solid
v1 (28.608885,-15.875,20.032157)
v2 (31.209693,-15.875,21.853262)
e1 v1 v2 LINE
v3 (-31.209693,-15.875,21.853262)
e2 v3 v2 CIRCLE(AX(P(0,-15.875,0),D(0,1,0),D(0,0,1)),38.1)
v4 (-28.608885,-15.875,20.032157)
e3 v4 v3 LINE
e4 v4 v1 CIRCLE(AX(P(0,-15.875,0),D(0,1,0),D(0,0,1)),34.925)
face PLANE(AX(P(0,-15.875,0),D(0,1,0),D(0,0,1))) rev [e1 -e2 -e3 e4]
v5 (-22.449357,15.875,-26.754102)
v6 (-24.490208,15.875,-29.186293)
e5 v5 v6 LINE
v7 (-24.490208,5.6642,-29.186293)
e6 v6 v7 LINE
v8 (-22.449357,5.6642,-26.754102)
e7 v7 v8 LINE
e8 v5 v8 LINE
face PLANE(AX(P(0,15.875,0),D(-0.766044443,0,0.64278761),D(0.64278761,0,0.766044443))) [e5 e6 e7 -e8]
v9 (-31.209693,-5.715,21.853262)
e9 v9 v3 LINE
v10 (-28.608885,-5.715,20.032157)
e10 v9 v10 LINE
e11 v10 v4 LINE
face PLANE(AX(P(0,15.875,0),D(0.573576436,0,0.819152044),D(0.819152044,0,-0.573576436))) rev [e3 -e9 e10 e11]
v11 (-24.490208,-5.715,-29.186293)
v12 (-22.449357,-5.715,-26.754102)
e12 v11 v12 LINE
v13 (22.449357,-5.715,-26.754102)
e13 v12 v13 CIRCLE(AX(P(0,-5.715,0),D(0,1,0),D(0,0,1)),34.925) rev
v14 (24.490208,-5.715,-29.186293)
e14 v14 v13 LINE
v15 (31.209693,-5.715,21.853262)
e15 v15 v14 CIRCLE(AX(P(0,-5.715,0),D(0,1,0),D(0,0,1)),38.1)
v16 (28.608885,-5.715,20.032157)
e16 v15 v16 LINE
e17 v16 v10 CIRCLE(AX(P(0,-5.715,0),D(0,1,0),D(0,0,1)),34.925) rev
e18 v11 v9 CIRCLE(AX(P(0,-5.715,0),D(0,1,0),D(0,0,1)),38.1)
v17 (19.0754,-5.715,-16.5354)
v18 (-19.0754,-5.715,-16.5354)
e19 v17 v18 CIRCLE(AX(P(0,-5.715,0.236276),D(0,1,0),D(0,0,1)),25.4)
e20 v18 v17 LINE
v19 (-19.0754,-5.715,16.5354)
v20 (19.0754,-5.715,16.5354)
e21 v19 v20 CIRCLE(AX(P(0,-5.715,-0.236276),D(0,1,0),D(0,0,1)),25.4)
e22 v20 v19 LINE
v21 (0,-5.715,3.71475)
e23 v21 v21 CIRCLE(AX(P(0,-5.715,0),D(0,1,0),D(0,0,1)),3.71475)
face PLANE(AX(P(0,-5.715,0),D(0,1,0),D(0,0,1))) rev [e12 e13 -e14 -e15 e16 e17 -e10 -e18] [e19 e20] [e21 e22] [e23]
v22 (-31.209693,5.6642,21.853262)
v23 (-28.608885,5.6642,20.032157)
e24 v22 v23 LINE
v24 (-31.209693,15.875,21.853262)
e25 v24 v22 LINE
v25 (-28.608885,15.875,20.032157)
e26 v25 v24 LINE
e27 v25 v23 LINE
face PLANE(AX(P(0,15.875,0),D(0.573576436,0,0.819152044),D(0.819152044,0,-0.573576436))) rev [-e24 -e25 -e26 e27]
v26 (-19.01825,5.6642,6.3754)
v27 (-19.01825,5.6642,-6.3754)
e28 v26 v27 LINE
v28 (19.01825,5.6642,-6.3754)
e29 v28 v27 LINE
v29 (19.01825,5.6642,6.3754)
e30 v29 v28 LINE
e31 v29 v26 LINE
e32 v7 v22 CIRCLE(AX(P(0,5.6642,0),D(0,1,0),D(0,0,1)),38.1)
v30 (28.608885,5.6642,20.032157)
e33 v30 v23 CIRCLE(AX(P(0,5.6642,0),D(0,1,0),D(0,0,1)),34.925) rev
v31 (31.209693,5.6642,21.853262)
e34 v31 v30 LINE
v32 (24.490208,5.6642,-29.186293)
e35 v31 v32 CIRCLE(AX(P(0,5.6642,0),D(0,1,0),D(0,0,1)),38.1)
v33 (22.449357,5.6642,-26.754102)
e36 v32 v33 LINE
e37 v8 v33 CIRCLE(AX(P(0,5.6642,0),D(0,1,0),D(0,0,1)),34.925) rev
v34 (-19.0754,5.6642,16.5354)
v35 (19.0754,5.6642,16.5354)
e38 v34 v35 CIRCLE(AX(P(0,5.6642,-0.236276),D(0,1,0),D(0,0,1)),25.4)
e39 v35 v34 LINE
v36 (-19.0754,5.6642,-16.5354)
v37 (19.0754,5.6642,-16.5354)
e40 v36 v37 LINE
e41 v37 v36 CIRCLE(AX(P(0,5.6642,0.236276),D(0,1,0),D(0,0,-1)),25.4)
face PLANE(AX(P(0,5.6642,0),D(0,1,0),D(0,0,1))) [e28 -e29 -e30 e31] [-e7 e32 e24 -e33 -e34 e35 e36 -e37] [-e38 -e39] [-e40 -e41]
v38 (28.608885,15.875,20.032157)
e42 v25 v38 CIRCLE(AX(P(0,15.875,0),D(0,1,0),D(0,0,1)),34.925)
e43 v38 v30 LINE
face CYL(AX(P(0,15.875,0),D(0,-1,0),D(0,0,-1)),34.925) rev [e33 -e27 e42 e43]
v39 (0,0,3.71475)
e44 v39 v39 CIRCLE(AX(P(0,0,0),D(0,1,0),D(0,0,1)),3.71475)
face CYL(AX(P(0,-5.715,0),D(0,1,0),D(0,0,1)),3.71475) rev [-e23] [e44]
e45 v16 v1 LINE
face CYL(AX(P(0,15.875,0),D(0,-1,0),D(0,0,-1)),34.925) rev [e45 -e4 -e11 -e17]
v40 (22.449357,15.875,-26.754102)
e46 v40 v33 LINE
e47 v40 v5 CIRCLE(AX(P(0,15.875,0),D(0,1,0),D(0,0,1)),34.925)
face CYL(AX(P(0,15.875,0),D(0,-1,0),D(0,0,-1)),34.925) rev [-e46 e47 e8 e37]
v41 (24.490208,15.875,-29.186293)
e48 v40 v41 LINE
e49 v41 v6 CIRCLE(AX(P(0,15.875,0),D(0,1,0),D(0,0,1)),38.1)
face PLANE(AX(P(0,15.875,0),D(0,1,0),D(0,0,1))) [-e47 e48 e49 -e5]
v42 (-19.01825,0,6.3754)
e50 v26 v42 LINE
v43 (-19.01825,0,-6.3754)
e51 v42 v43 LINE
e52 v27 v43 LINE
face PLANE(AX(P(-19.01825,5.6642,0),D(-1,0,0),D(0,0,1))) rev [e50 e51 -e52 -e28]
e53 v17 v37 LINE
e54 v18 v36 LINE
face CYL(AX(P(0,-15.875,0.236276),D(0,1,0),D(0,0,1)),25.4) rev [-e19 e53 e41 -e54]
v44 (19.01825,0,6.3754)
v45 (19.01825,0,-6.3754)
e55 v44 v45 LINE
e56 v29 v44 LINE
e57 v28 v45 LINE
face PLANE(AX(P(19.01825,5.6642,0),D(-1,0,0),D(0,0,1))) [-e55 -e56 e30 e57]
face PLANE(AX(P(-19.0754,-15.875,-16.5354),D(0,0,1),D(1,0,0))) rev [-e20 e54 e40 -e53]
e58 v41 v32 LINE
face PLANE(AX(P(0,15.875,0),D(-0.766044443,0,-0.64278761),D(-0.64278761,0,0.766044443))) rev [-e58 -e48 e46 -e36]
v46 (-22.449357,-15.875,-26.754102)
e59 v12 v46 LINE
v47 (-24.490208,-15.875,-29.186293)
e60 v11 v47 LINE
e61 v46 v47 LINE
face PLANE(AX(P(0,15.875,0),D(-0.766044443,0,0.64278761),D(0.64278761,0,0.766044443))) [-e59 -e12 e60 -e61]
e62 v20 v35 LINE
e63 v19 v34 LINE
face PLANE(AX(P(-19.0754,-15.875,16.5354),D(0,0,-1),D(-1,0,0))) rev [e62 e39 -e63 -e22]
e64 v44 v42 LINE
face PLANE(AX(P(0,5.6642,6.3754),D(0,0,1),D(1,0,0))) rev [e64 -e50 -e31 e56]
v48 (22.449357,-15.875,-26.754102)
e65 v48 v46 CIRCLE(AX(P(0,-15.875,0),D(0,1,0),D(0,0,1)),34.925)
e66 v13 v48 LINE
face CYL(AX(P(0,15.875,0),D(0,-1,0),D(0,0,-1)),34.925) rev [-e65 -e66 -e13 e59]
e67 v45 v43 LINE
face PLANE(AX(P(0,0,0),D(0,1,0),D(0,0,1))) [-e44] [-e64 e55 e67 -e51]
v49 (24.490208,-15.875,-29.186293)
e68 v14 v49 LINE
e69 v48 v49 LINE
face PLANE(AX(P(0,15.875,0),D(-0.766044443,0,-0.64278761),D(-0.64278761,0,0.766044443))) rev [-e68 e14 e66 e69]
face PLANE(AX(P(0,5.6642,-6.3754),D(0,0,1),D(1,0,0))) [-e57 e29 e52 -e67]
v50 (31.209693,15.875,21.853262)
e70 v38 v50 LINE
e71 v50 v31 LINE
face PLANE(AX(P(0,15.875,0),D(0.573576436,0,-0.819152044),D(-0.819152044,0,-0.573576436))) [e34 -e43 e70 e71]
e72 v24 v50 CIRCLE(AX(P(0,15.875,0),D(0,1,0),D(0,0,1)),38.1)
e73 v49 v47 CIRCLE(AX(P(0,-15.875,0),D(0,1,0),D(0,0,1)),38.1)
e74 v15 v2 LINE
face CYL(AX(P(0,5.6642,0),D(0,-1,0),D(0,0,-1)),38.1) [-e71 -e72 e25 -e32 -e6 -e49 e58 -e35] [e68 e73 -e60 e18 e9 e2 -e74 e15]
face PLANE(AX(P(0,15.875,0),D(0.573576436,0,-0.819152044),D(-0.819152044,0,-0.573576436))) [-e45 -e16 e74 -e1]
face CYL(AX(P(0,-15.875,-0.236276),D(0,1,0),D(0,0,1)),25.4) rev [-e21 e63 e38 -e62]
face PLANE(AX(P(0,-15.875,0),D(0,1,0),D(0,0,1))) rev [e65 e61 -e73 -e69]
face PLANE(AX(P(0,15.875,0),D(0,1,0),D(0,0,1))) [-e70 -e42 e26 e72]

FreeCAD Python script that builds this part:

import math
import FreeCAD as App
import Part
import Sketcher
from FreeCAD import Vector
Q = App.Units.Quantity


def add_polygon(sketch, points):
    """Adds a closed chain of lines whose ends are joined by coincident constraints."""
    first, n = sketch.GeometryCount, len(points)
    for a, b in zip(points, points[1:] + points[:1]):
        sketch.addGeometry(Part.LineSegment(App.Vector(*a, 0), App.Vector(*b, 0)), False)
    for i in range(n):
        sketch.addConstraint(Sketcher.Constraint("Coincident", first + i, 2, first + (i + 1) % n, 1))

doc = App.newDocument("Part")
body = doc.addObject("PartDesign::Body", "Body")

# Sketch on XZ plane
sketch1 = body.newObject("Sketcher::SketchObject", "Sketch")
sketch1.AttachmentSupport = (doc.getObject("XZ_Plane"), [""])
sketch1.MapMode = "FlatFace"
sketch1.addGeometry(Part.Circle(Vector(0, 0, 0), Vector(0, 0, 1), 38.1), False)  # 0
add_polygon(sketch1, [(19.01825, 6.3754), (-19.01825, 6.3754), (-19.01825, -6.3754), (19.01825, -6.3754)])  # lines 1-4
sketch1.addConstraint([
    Sketcher.Constraint("Horizontal", 1),
    Sketcher.Constraint("Vertical", 2),
    Sketcher.Constraint("Horizontal", 3),
    Sketcher.Constraint("Vertical", 4),
    Sketcher.Constraint("Coincident", 0, 3, -1, 1),
    Sketcher.Constraint("Symmetric", 1, 2, 3, 2, -1, 1),
    Sketcher.Constraint("Diameter", 0, Q("3 in")),
    Sketcher.Constraint("DistanceY", 2, 2, 2, 1, Q("0.502 in")),
    Sketcher.Constraint("DistanceX", 1, 2, 1, 1, Q("1.4975 in")),
])
pad1 = body.newObject("PartDesign::Pad", "Pad")
pad1.Profile = sketch1
pad1.Length = Q("0.223 in")
pad1.Reversed = True

# Sketch on XZ plane
sketch2 = body.newObject("Sketcher::SketchObject", "Sketch001")
sketch2.AttachmentSupport = (doc.getObject("XZ_Plane"), [""])
sketch2.MapMode = "FlatFace"
sketch2.addGeometry([
    Part.Circle(Vector(0, 0, 0), Vector(0, 0, 1), 38.1),
    Part.Circle(Vector(0, 0, 0), Vector(0, 0, 1), 3.71475),
], False)
sketch2.addConstraint([
    Sketcher.Constraint("Coincident", 0, 3, -1, 1),
    Sketcher.Constraint("Coincident", 1, 3, -1, 1),
    Sketcher.Constraint("Diameter", 0, Q("3 in")),
    Sketcher.Constraint("Diameter", 1, Q("0.2925 in")),
])
pad2 = body.newObject("PartDesign::Pad", "Pad001")
pad2.Profile = sketch2
pad2.Length = Q("0.225 in")

# Sketch on XZ plane
sketch3 = body.newObject("Sketcher::SketchObject", "Sketch002")
sketch3.AttachmentSupport = (doc.getObject("XZ_Plane"), [""])
sketch3.MapMode = "FlatFace"
sketch3.addGeometry([
    Part.ArcOfCircle(Part.Circle(Vector(-0.000002, -0.000003, 0), Vector(0, 0, 1), 34.925003), math.radians(35.000002), math.radians(89.999997)),  # 0
    Part.ArcOfCircle(Part.Circle(Vector(0.000002, -0.000003, 0), Vector(0, 0, 1), 34.925003), math.radians(90.000003), math.radians(144.999998)),  # 1
    Part.LineSegment(Vector(-28.608885, 20.032157, 0), Vector(-31.209693, 21.853262, 0)),  # 2
    Part.ArcOfCircle(Part.Circle(Vector(-0.000001, 0.000001, 0), Vector(0, 0, 1), 38.099999), math.radians(89.999999), math.radians(145.000001)),  # 3
    Part.ArcOfCircle(Part.Circle(Vector(0.000001, 0.000001, 0), Vector(0, 0, 1), 38.099999), math.radians(34.999999), math.radians(90.000001)),  # 4
    Part.LineSegment(Vector(31.209693, 21.853262, 0), Vector(28.608885, 20.032157, 0)),  # 5
    Part.ArcOfCircle(Part.Circle(Vector(0, -0.000001, 0), Vector(0, 0, 1), 38.099999), math.radians(-130.000001), math.radians(-90)),  # 6
    Part.LineSegment(Vector(-24.490208, -29.186293, 0), Vector(-22.449357, -26.754102, 0)),  # 7
    Part.ArcOfCircle(Part.Circle(Vector(-0.000003, -0.000008, 0), Vector(0, 0, 1), 34.924992), math.radians(-130.000005), math.radians(-89.999996)),  # 8
    Part.ArcOfCircle(Part.Circle(Vector(0.000003, -0.000008, 0), Vector(0, 0, 1), 34.924992), math.radians(-90.000004), math.radians(-49.999995)),  # 9
    Part.LineSegment(Vector(22.449357, -26.754102, 0), Vector(24.490208, -29.186293, 0)),  # 10
    Part.ArcOfCircle(Part.Circle(Vector(0, -0.000001, 0), Vector(0, 0, 1), 38.099999), math.radians(-90), math.radians(-49.999999)),  # 11
], False)
sketch3.addConstraint([
    Sketcher.Constraint("Tangent", 0, 2, 1, 1),
    Sketcher.Constraint("Coincident", 1, 2, 2, 1),
    Sketcher.Constraint("Coincident", 2, 2, 3, 2),
    Sketcher.Constraint("Tangent", 3, 1, 4, 2),
    Sketcher.Constraint("Coincident", 4, 1, 5, 1),
    Sketcher.Constraint("Coincident", 5, 2, 0, 1),
    Sketcher.Constraint("Coincident", 6, 1, 7, 1),
    Sketcher.Constraint("Coincident", 7, 2, 8, 1),
    Sketcher.Constraint("Tangent", 8, 2, 9, 1),
    Sketcher.Constraint("Coincident", 9, 2, 10, 1),
    Sketcher.Constraint("Coincident", 10, 2, 11, 2),
    Sketcher.Constraint("Tangent", 11, 1, 6, 2),
    Sketcher.Constraint("Coincident", 0, 3, -1, 1),
    Sketcher.Constraint("Coincident", 3, 3, -1, 1),
    Sketcher.Constraint("Coincident", 6, 3, -1, 1),
    Sketcher.Constraint("Coincident", 8, 3, -1, 1),
    Sketcher.Constraint("Equal", 0, 1),
    Sketcher.Constraint("Equal", 3, 4),
    Sketcher.Constraint("Equal", 4, 6),
    Sketcher.Constraint("Equal", 8, 9),
    Sketcher.Constraint("Equal", 6, 11),
    Sketcher.Constraint("Symmetric", 0, 2, 8, 2, -1, 1),
    Sketcher.Constraint("PointOnObject", 0, 2, -2),
    Sketcher.Constraint("PointOnObject", 3, 1, -2),
    Sketcher.Constraint("PointOnObject", 11, 1, -2),
    Sketcher.Constraint("Horizontal", 2, 2, 4, 1),
    Sketcher.Constraint("Horizontal", 1, 2, 5, 2),
    Sketcher.Constraint("Horizontal", 7, 2, 9, 2),
    Sketcher.Constraint("Horizontal", 6, 1, 10, 2),
    Sketcher.Constraint("Radius", 3, Q("1.4999999 in")),
    Sketcher.Constraint("Angle", 2, Q("145.000005 deg")),
    Sketcher.Constraint("Angle", 7, Q("49.999994 deg")),
    Sketcher.Constraint("Radius", 0, Q("1.3750001 in")),
    Sketcher.Constraint("DistanceY", 7, 2, -1, 1, Q("26.754102 mm")),
    Sketcher.Constraint("DistanceY", 0, 3, 1, 2, Q("20.03216 mm")),
])
pad3 = body.newObject("PartDesign::Pad", "Pad002")
pad3.Profile = sketch3
pad3.Length = Q("1.25 in")
pad3.Midplane = True

# Sketch on XZ plane
sketch4 = body.newObject("Sketcher::SketchObject", "Sketch003")
sketch4.AttachmentSupport = (doc.getObject("XZ_Plane"), [""])
sketch4.MapMode = "FlatFace"
sketch4.AttachmentOffset = App.Placement(Vector(0, 0, -0.223 * 25.4), App.Rotation())
sketch4.addGeometry([
    Part.LineSegment(Vector(-19.0754, -16.5354, 0), Vector(19.0754, -16.5354, 0)),
    Part.ArcOfCircle(Part.Circle(Vector(0, 0.236276, 0), Vector(0, 0, 1), 25.4), math.radians(-138.677075), math.radians(-41.322925)),
    Part.LineSegment(Vector(19.0754, 16.5354, 0), Vector(-19.0754, 16.5354, 0)),
    Part.ArcOfCircle(Part.Circle(Vector(0, -0.236276, 0), Vector(0, 0, 1), 25.4), math.radians(41.322925), math.radians(138.677075)),
], False)
sketch4.addConstraint([
    Sketcher.Constraint("Coincident", 0, 1, 1, 1),
    Sketcher.Constraint("Coincident", 1, 2, 0, 2),
    Sketcher.Constraint("Coincident", 2, 1, 3, 1),
    Sketcher.Constraint("Coincident", 3, 2, 2, 2),
    Sketcher.Constraint("Horizontal", 0),
    Sketcher.Constraint("Horizontal", 2),
    Sketcher.Constraint("Equal", 1, 3),
    Sketcher.Constraint("Symmetric", 1, 3, 3, 3, -1, 1),
    Sketcher.Constraint("Symmetric", 1, 2, 2, 1, -1),
    Sketcher.Constraint("Radius", 1, Q("1 in")),
    Sketcher.Constraint("DistanceX", 0, 1, 0, 2, Q("1.502 in")),
    Sketcher.Constraint("DistanceY", 0, 1, -1, 1, Q("0.651 in")),
])
pocket1 = body.newObject("PartDesign::Pocket", "Pocket")
pocket1.Profile = sketch4
pocket1.Type = "ThroughAll"
pocket1.Reversed = True

doc.recompute()
